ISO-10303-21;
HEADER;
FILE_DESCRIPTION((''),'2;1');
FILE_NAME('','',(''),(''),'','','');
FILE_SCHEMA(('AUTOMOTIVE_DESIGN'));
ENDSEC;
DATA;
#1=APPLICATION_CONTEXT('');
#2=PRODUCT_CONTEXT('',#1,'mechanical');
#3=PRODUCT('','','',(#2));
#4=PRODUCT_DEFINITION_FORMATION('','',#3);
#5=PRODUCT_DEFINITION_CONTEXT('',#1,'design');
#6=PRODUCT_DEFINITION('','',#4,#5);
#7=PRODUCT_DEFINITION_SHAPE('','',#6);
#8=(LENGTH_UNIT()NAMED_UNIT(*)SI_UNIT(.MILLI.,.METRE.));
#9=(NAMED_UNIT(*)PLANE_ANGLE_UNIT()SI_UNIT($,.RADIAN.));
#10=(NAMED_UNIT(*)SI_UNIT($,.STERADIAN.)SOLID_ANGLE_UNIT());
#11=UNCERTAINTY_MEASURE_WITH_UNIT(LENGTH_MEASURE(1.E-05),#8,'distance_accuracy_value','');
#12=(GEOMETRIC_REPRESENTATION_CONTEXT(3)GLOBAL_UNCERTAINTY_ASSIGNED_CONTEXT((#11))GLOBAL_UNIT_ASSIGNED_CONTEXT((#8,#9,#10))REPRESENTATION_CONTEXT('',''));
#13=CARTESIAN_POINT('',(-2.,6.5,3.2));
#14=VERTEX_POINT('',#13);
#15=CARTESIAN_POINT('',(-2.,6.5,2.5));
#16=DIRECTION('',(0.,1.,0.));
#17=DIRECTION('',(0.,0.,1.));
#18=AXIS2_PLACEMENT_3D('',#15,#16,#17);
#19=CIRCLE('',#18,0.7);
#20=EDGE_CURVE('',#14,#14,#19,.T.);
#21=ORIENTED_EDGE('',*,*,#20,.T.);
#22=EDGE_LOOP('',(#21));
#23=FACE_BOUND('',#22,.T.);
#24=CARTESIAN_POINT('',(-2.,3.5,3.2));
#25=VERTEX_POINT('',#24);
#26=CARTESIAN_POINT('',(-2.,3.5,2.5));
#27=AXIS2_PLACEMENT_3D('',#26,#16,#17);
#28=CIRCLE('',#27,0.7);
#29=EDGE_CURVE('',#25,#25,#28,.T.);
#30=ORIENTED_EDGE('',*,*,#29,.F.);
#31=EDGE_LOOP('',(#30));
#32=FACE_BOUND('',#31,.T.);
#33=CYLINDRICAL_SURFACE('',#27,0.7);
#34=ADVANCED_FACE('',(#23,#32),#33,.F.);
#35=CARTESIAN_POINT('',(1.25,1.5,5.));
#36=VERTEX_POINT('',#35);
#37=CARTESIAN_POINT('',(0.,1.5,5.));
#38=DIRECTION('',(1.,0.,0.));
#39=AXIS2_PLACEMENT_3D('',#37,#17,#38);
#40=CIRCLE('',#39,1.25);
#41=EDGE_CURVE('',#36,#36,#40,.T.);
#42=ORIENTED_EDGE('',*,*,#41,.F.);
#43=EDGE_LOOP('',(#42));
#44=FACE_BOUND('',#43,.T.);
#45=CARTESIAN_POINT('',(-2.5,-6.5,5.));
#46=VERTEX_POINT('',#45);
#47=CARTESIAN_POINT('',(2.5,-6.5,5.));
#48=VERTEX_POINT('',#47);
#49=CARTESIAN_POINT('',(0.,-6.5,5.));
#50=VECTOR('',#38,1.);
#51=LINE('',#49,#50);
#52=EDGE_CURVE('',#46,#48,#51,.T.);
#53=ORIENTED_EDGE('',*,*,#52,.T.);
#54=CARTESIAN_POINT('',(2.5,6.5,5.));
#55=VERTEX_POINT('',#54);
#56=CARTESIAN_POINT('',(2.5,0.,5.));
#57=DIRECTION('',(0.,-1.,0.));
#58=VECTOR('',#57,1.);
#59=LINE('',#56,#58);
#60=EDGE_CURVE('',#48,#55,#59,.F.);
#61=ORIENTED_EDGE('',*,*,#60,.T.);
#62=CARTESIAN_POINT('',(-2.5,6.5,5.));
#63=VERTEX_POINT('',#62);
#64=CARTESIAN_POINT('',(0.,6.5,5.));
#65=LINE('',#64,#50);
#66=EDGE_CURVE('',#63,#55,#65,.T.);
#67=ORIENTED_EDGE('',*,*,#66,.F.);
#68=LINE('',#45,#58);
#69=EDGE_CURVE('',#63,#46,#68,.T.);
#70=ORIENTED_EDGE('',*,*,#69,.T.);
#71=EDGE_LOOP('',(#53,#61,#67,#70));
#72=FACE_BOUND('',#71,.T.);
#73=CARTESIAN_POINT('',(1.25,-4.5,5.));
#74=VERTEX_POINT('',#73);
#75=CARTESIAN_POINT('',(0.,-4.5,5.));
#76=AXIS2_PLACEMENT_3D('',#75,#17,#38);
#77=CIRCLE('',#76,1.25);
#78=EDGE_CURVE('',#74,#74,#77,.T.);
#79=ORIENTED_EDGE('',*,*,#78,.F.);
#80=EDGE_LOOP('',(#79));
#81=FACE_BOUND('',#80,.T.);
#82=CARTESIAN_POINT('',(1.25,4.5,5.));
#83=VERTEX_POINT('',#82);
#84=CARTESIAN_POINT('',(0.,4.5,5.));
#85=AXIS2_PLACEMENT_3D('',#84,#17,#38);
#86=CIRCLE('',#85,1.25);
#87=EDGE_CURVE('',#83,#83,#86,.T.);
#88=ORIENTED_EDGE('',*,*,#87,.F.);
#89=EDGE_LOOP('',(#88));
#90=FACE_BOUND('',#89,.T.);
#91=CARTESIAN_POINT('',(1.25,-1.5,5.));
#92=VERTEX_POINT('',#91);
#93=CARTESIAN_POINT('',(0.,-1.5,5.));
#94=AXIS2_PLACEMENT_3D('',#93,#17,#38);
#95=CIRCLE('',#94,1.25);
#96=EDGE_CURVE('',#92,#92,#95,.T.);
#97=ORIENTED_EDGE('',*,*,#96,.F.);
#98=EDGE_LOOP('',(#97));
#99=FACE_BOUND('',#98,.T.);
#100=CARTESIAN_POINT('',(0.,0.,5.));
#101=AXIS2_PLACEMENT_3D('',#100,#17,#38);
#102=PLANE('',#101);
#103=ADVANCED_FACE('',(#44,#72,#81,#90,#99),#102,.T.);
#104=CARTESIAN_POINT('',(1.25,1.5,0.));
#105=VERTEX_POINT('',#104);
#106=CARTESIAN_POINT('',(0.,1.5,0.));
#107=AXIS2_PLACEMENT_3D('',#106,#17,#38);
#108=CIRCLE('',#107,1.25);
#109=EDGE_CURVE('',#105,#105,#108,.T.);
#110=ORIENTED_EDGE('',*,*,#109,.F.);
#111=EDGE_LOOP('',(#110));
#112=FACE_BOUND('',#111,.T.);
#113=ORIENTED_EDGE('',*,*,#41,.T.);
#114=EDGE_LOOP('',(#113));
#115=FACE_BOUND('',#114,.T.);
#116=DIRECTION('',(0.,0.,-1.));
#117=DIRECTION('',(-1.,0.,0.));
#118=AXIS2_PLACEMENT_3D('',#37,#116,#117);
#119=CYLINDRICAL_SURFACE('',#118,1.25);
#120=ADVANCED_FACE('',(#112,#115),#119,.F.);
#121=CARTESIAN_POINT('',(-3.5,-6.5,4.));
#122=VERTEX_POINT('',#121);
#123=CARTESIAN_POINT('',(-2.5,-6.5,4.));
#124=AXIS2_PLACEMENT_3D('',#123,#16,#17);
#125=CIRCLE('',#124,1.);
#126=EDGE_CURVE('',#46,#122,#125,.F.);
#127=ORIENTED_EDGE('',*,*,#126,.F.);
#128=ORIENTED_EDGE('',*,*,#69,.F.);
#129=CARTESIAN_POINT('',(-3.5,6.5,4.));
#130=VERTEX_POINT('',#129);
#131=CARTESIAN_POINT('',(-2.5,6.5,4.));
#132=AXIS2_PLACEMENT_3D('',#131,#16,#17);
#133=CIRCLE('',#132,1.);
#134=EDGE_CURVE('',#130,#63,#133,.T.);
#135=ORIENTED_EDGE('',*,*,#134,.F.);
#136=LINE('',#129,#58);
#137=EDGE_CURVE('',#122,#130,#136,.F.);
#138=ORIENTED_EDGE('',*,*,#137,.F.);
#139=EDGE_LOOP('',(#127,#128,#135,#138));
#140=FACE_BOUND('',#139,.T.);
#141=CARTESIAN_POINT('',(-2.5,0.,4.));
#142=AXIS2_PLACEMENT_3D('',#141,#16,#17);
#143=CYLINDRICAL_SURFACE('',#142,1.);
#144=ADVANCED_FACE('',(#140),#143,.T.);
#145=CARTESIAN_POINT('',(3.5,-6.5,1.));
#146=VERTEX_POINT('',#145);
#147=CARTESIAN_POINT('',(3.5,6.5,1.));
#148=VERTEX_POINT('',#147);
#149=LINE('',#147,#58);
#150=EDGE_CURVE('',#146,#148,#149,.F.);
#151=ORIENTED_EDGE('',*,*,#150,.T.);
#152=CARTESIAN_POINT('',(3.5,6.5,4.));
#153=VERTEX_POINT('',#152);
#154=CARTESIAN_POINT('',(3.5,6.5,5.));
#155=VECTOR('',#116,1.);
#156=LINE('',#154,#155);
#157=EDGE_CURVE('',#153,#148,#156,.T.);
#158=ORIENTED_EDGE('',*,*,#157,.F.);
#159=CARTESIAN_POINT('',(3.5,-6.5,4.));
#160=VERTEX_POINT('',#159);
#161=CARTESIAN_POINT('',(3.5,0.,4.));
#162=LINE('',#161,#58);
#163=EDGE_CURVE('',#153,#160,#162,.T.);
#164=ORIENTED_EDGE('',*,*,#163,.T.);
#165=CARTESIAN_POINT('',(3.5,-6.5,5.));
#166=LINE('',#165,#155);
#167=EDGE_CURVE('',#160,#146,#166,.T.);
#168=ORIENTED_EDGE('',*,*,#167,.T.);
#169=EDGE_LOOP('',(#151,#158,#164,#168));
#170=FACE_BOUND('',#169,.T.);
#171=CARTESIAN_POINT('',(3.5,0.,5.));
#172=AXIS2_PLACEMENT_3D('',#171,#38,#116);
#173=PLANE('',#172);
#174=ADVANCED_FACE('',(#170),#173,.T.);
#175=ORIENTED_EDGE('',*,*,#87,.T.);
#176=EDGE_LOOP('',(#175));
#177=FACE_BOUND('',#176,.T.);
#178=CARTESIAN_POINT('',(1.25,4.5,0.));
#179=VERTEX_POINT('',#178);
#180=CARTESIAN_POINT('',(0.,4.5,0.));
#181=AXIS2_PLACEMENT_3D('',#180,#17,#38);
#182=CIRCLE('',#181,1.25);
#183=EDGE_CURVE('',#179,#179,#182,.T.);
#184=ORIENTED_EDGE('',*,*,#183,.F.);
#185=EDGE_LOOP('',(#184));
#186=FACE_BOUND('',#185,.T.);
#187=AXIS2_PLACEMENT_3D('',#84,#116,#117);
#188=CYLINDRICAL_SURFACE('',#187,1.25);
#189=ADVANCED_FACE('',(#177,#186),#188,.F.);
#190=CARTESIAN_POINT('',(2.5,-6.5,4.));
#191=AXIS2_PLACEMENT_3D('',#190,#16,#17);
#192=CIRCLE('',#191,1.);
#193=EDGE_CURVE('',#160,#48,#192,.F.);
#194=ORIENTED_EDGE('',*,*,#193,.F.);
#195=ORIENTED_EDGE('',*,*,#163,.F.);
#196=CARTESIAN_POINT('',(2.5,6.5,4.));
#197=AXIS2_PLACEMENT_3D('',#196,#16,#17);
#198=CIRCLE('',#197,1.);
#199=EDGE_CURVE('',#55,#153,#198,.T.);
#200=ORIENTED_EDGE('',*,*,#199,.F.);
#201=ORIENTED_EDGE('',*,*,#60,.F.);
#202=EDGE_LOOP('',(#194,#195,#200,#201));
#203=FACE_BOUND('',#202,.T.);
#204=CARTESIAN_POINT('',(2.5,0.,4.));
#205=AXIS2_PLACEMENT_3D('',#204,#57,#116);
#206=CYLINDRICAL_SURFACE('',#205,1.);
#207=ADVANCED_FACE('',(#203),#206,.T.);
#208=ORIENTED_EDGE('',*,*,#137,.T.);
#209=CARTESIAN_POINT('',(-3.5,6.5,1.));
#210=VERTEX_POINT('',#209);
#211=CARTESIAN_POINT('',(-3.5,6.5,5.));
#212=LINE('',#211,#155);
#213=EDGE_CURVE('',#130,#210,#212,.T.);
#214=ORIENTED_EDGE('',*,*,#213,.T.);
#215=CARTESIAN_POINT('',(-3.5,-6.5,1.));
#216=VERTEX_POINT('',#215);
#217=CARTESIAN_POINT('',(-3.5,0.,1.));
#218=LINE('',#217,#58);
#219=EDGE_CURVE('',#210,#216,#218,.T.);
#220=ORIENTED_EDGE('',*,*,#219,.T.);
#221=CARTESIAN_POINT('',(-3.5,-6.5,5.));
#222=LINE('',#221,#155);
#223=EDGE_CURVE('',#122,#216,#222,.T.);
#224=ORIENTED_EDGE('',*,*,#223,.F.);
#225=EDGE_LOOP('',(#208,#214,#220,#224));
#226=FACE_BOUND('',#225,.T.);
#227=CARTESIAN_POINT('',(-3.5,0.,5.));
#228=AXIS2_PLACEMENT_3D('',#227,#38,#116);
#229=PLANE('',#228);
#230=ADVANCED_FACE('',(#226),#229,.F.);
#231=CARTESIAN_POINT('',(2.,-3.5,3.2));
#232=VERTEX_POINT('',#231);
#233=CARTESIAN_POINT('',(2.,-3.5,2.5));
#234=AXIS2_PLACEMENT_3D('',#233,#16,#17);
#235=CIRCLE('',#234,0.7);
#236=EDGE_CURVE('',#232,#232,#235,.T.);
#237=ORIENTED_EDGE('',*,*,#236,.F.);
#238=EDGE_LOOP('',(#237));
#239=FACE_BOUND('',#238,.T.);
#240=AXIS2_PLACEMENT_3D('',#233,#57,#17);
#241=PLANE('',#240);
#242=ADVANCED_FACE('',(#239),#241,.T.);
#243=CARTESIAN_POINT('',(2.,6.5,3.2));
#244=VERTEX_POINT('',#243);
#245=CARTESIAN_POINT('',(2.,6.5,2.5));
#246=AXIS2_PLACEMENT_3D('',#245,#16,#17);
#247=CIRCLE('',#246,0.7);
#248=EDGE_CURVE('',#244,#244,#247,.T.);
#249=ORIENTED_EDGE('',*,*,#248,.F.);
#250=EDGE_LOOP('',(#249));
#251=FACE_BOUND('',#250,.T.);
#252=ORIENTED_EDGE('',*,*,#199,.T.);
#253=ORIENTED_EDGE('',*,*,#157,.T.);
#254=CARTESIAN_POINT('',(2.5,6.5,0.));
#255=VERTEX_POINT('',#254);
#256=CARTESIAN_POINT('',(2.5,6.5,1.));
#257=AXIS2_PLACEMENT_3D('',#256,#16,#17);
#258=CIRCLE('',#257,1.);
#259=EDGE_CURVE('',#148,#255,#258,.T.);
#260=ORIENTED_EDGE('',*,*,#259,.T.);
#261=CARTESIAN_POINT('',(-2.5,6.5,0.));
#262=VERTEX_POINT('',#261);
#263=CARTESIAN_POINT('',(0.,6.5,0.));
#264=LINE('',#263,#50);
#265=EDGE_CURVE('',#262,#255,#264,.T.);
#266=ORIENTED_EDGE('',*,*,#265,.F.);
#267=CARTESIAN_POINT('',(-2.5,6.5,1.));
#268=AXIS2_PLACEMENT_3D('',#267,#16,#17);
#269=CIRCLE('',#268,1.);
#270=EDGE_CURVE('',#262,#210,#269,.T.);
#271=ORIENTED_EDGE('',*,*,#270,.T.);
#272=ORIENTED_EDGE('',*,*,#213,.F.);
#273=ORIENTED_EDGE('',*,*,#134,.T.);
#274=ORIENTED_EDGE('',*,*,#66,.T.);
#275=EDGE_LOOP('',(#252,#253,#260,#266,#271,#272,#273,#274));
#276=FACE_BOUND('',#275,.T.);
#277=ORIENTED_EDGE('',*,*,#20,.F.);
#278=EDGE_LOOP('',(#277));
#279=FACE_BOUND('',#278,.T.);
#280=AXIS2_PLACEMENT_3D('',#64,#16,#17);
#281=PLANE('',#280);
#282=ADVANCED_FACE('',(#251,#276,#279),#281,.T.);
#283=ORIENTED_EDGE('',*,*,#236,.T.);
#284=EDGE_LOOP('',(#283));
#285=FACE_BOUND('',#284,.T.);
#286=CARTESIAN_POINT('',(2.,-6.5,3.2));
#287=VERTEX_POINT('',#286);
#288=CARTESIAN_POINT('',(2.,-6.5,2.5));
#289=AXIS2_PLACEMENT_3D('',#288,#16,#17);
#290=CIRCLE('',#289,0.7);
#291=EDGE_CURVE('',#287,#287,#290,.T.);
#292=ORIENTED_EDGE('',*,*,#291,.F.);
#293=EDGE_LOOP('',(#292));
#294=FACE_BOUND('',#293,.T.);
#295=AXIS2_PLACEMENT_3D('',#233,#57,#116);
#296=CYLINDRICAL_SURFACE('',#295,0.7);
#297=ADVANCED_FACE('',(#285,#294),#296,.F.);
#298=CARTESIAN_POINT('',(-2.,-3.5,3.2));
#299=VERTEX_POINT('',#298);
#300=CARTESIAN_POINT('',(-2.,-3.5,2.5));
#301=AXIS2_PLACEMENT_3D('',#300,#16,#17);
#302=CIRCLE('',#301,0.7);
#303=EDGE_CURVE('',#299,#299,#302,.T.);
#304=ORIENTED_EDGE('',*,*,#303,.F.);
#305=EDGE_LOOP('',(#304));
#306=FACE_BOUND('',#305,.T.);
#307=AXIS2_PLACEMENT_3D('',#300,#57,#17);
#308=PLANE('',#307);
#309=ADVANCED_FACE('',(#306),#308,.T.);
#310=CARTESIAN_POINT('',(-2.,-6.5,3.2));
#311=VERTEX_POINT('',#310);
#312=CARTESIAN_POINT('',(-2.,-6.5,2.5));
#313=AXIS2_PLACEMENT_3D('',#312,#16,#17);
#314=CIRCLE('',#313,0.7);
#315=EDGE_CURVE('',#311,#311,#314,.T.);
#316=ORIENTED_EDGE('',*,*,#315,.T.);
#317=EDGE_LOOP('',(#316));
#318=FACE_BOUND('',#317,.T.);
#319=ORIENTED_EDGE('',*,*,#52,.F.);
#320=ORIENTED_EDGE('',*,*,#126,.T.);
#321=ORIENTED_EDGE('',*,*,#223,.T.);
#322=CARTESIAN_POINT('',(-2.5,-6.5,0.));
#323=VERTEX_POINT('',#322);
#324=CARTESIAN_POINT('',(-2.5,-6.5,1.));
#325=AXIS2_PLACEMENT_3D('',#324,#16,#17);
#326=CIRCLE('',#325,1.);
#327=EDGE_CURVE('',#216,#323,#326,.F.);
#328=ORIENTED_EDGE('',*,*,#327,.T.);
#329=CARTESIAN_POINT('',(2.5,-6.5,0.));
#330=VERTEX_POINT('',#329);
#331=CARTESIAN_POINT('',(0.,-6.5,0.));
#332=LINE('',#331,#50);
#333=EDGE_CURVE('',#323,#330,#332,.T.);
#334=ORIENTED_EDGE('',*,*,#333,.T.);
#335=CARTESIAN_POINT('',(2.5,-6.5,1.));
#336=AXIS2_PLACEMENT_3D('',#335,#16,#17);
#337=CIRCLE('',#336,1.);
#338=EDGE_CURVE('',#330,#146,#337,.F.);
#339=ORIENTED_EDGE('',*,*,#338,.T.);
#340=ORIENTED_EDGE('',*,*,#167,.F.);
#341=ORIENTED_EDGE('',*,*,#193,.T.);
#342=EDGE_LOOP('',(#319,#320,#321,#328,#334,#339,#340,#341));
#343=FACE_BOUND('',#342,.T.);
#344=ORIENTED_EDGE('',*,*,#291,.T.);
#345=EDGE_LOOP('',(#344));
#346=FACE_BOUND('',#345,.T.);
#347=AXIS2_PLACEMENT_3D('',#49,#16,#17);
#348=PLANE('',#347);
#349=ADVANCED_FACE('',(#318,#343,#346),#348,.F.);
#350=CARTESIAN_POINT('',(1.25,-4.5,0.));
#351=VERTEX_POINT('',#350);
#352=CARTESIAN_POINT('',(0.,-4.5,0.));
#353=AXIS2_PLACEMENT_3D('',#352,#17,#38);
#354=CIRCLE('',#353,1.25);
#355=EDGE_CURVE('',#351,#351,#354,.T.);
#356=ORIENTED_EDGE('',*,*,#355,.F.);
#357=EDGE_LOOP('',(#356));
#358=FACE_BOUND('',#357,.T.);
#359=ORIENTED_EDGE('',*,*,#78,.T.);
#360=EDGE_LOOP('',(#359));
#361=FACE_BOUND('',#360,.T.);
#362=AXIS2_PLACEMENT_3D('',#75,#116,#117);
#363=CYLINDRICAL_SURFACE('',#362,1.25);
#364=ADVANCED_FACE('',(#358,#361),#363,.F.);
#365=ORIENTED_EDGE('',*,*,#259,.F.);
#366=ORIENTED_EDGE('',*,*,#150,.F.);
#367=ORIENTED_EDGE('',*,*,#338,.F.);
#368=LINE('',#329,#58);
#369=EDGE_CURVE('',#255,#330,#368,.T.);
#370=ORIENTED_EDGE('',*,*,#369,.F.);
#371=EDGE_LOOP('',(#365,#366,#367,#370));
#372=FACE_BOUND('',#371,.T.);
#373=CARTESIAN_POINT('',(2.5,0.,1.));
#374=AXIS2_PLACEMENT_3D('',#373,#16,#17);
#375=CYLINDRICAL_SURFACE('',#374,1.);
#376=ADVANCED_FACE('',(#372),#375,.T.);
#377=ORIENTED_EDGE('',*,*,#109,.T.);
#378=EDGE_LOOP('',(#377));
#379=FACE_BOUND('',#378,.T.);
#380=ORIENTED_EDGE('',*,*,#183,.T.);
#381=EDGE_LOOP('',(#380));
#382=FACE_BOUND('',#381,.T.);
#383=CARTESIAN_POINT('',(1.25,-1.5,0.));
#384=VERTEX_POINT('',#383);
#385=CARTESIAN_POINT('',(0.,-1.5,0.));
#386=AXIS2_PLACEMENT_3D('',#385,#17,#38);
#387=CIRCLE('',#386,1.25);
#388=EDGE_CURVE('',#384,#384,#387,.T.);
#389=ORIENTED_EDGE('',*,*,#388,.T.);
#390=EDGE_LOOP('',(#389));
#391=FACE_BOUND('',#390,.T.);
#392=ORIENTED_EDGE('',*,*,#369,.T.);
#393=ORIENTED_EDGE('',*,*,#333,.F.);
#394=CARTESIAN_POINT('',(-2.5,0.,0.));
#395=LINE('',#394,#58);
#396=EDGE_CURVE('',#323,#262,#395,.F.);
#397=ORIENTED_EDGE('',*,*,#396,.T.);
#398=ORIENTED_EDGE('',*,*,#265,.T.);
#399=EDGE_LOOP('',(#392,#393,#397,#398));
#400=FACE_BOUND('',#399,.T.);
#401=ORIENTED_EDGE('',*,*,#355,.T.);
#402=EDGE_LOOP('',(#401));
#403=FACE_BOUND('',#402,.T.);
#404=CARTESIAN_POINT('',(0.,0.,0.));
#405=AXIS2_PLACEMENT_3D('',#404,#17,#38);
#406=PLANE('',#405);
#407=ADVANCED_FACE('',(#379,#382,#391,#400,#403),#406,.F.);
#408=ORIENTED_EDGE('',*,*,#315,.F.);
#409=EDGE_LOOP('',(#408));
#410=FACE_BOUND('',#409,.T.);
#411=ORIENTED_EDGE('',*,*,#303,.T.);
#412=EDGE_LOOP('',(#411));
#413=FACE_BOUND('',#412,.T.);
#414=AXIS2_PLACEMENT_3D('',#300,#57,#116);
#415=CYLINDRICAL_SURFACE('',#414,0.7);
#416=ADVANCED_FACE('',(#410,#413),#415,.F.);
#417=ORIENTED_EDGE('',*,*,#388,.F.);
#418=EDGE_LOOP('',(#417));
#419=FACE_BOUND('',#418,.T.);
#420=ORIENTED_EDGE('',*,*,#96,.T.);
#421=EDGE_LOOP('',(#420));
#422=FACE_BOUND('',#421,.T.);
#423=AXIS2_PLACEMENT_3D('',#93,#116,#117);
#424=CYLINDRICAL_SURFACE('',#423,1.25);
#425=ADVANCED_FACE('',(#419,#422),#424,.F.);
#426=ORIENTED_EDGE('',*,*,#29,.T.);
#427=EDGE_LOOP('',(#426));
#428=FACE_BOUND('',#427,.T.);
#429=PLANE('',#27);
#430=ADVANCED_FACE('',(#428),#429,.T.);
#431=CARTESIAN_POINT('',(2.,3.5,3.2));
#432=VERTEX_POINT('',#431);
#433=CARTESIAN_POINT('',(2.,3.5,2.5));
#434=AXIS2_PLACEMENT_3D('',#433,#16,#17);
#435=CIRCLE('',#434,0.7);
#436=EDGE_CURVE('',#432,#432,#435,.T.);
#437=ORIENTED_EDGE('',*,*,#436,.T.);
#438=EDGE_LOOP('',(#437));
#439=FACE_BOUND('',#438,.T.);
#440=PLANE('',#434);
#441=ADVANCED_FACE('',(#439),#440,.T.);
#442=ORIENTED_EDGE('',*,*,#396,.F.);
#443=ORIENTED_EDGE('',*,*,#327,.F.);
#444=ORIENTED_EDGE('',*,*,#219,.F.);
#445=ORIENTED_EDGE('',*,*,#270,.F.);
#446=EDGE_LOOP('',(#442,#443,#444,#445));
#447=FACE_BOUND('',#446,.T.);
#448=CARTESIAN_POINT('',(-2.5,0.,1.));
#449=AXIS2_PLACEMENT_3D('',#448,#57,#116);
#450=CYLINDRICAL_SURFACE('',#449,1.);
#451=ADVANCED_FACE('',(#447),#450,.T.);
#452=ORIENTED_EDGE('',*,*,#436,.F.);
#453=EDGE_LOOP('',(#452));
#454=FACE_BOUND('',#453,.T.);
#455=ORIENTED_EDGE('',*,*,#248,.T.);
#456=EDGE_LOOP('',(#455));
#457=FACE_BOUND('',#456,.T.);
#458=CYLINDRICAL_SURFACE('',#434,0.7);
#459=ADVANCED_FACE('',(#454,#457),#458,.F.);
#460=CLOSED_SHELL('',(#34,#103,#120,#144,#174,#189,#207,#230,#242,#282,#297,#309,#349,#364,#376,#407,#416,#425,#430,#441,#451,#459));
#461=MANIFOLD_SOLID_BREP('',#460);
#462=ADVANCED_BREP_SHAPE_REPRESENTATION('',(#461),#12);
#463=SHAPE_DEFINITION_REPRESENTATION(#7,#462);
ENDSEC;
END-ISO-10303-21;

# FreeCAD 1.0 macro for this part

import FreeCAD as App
import Part
import Sketcher
from FreeCAD import Vector


def edges_at(feature, points):
    """Names of the edges that pass closest to the given points."""
    edges = feature.Shape.Edges
    near = lambda p: min(range(len(edges)), key=lambda i: edges[i].distToShape(Part.Vertex(*p))[0])
    return sorted({f"Edge{near(p) + 1}" for p in points})

doc = App.newDocument("Part")
params = doc.addObject("Spreadsheet::Sheet", "Params")
for row, (alias, value) in enumerate([
    ("sketch1_diameter", "2.5 mm"),
    ("sketch1_width", "7 mm"),
    ("sketch1_height", "13 mm"),
    ("pad1_length", "5 mm"),
    ("fillet_radius", "1 mm"),
    ("sketch2_diameter", "1.4 mm"),
    ("pocket1_length", "3 mm"),
], start=1):
    params.set(f"A{row}", alias)
    params.set(f"B{row}", "=" + value)
    params.setAlias(f"B{row}", alias)

body = doc.addObject("PartDesign::Body", "Body")

# Sketch on XY plane
sketch1 = body.newObject("Sketcher::SketchObject", "Sketch")
sketch1.AttachmentSupport = (doc.getObject("XY_Plane"), [""])
sketch1.MapMode = "FlatFace"
sketch1.addGeometry(Part.LineSegment(Vector(-3.5, 6.5, 0), Vector(-3.5, -6.5, 0)), False)
sketch1.addGeometry(Part.LineSegment(Vector(-3.5, -6.5, 0), Vector(3.5, -6.5, 0)), False)
sketch1.addGeometry(Part.LineSegment(Vector(3.5, -6.5, 0), Vector(3.5, 6.5, 0)), False)
sketch1.addGeometry(Part.LineSegment(Vector(3.5, 6.5, 0), Vector(-3.5, 6.5, 0)), False)
sketch1.addGeometry(Part.Circle(Vector(0, -4.5, 0), Vector(0, 0, 1), 1.2), False)
sketch1.addGeometry(Part.Circle(Vector(0, -1.5, 0), Vector(0, 0, 1), 1.2), False)
sketch1.addGeometry(Part.Circle(Vector(0, 1.5, 0), Vector(0, 0, 1), 1.2), False)
sketch1.addGeometry(Part.Circle(Vector(0, 4.5, 0), Vector(0, 0, 1), 1.2), False)
sketch1.addConstraint(Sketcher.Constraint("Coincident", 0, 2, 1, 1))
sketch1.addConstraint(Sketcher.Constraint("Coincident", 1, 2, 2, 1))
sketch1.addConstraint(Sketcher.Constraint("Coincident", 2, 2, 3, 1))
sketch1.addConstraint(Sketcher.Constraint("Coincident", 3, 2, 0, 1))
sketch1.addConstraint(Sketcher.Constraint("Vertical", 0))
sketch1.addConstraint(Sketcher.Constraint("Horizontal", 1))
sketch1.addConstraint(Sketcher.Constraint("Vertical", 2))
sketch1.addConstraint(Sketcher.Constraint("Horizontal", 3))
sketch1.addConstraint(Sketcher.Constraint("Equal", 4, 5))
sketch1.addConstraint(Sketcher.Constraint("Equal", 5, 6))
sketch1.addConstraint(Sketcher.Constraint("Equal", 6, 7))
sketch1.addConstraint(Sketcher.Constraint("Symmetric", 5, 3, 6, 3, -1, 1))
sketch1.addConstraint(Sketcher.Constraint("Symmetric", 4, 3, 7, 3, -1, 1))
sketch1.addConstraint(Sketcher.Constraint("Symmetric", 0, 2, 2, 2, -1, 1))
sketch1.addConstraint(Sketcher.Constraint("PointOnObject", 4, 3, -2))
sketch1.addConstraint(Sketcher.Constraint("PointOnObject", 5, 3, -2))
sketch1.addConstraint(Sketcher.Constraint("Diameter", 4, 2.5))
sketch1.addConstraint(Sketcher.Constraint("DistanceX", 1, 1, 1, 2, 7.0))
sketch1.addConstraint(Sketcher.Constraint("DistanceY", 0, 2, 0, 1, 13.0))
sketch1.addConstraint(Sketcher.Constraint("DistanceY", 4, 3, 5, 3, 3.0))
sketch1.addConstraint(Sketcher.Constraint("DistanceY", 5, 3, 6, 3, 3.0))
sketch1.setExpression("Constraints[16]", "Params.sketch1_diameter")
sketch1.setExpression("Constraints[17]", "Params.sketch1_width")
sketch1.setExpression("Constraints[18]", "Params.sketch1_height")
pad1 = body.newObject("PartDesign::Pad", "Pad")
pad1.Profile = sketch1
pad1.setExpression("Length", "Params.pad1_length")
doc.recompute()

fillet = body.newObject("PartDesign::Fillet", "Fillet")
fillet.Base = (pad1, edges_at(pad1, [
    (-3.5, 0, 0),
    (3.5, 0, 0),
    (3.5, 0, 5),
    (-3.5, 0, 5),
]))
fillet.setExpression("Radius", "Params.fillet_radius")

# Sketch on XZ plane
sketch2 = body.newObject("Sketcher::SketchObject", "Sketch001")
sketch2.AttachmentSupport = (doc.getObject("XZ_Plane"), [""])
sketch2.MapMode = "FlatFace"
sketch2.AttachmentOffset = App.Placement(Vector(0, 0, -6.5), App.Rotation())
sketch2.addGeometry(Part.Circle(Vector(-2, 2.5, 0), Vector(0, 0, 1), 0.7), False)
sketch2.addGeometry(Part.Circle(Vector(2, 2.5, 0), Vector(0, 0, 1), 0.7), False)
sketch2.addConstraint(Sketcher.Constraint("Equal", 0, 1))
sketch2.addConstraint(Sketcher.Constraint("Symmetric", 0, 3, 1, 3, -2))
sketch2.addConstraint(Sketcher.Constraint("Diameter", 0, 1.4))
sketch2.addConstraint(Sketcher.Constraint("DistanceX", 0, 3, -1, 1, 2.0))
sketch2.addConstraint(Sketcher.Constraint("DistanceY", -1, 1, 0, 3, 2.5))
sketch2.setExpression("Constraints[2]", "Params.sketch2_diameter")
pocket1 = body.newObject("PartDesign::Pocket", "Pocket")
pocket1.Profile = sketch2
pocket1.setExpression("Length", "Params.pocket1_length")
pocket1.Reversed = True
doc.recompute()

mirrored = body.newObject("PartDesign::Mirrored", "Mirrored")
mirrored.Originals = [pocket1]
mirrored.MirrorPlane = (doc.getObject("XZ_Plane"), [""])
body.Tip = mirrored

doc.recompute()
